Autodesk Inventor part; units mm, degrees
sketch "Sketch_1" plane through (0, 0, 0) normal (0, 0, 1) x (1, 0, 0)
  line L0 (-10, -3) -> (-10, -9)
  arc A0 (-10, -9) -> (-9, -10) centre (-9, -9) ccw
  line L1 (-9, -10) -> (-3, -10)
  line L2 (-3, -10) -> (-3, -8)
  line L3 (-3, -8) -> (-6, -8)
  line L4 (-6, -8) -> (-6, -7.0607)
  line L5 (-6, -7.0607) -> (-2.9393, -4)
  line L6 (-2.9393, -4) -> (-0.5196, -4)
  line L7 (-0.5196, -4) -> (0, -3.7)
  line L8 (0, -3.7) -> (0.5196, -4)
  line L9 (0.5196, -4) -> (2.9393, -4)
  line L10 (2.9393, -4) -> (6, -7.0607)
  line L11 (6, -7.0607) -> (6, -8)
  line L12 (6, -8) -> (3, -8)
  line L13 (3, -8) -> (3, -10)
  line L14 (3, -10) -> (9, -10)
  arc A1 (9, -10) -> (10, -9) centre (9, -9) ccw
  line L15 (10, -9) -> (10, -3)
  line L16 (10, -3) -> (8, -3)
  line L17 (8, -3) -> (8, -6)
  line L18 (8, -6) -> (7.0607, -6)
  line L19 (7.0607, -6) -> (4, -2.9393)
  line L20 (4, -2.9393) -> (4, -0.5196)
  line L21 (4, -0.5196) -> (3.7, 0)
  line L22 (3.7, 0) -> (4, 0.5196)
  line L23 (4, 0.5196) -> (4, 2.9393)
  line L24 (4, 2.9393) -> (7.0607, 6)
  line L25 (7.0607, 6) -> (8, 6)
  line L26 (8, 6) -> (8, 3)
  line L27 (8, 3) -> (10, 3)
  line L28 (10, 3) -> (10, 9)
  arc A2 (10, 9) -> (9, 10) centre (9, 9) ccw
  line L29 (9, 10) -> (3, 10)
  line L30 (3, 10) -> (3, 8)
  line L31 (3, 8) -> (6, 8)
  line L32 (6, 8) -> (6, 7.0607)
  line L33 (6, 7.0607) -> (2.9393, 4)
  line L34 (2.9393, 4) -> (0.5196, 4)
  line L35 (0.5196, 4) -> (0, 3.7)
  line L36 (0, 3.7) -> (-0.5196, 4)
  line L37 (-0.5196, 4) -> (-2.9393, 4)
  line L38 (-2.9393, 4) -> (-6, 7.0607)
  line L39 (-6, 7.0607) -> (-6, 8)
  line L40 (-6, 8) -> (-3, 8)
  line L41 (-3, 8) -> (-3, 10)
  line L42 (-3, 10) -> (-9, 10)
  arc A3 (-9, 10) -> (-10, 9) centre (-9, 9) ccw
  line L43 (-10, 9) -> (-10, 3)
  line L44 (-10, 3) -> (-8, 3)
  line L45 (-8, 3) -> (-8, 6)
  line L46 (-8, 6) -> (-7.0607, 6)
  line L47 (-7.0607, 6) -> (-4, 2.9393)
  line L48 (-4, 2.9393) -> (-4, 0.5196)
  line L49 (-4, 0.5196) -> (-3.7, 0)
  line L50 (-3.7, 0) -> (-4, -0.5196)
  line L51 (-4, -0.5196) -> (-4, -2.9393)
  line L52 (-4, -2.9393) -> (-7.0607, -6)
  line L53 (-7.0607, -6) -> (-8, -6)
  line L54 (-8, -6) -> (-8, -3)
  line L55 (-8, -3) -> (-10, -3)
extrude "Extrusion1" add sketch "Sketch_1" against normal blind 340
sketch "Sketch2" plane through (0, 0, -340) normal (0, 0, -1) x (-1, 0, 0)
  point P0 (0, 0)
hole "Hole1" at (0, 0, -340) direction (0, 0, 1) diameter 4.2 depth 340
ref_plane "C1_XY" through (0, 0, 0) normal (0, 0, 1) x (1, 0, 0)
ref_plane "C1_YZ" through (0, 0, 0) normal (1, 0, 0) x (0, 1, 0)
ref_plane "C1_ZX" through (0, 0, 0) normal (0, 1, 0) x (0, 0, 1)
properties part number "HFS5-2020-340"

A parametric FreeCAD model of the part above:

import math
import FreeCAD as App
import Part
import Sketcher

V = App.Vector
Q = App.Units.Quantity

doc = App.newDocument("Part")
body = doc.addObject("PartDesign::Body", "Body")

sketch1 = doc.addObject("Sketcher::SketchObject", "Sketch")
body.addObject(sketch1)
sketch1.AttachmentSupport = (doc.XY_Plane, [""])
sketch1.MapMode = "FlatFace"
sketch1.addGeometry([
    Part.LineSegment(V(-8, -3, 0), V(-10, -3, 0)),
    Part.LineSegment(V(-10, -3, 0), V(-10, -9, 0)),
    Part.ArcOfCircle(Part.Circle(V(-9, -9, 0), V(0, 0, 1), 1), math.radians(180), math.radians(270)),
    Part.LineSegment(V(-9, -10, 0), V(-3, -10, 0)),
    Part.LineSegment(V(-3, -10, 0), V(-3, -8, 0)),
    Part.LineSegment(V(-3, -8, 0), V(-6, -8, 0)),
    Part.LineSegment(V(-6, -8, 0), V(-6, -7.1, 0)),
    Part.LineSegment(V(-6, -7.1, 0), V(-2.9, -4, 0)),
    Part.LineSegment(V(-2.9, -4, 0), V(-0.5, -4, 0)),
    Part.LineSegment(V(-0.5, -4, 0), V(0, -3.7, 0)),
    Part.LineSegment(V(0, -3.7, 0), V(0.5, -4, 0)),
    Part.LineSegment(V(0.5, -4, 0), V(2.9, -4, 0)),
    Part.LineSegment(V(2.9, -4, 0), V(6, -7.1, 0)),
    Part.LineSegment(V(6, -7.1, 0), V(6, -8, 0)),
    Part.LineSegment(V(6, -8, 0), V(3, -8, 0)),
    Part.LineSegment(V(3, -8, 0), V(3, -10, 0)),
    Part.LineSegment(V(3, -10, 0), V(9, -10, 0)),
    Part.ArcOfCircle(Part.Circle(V(9, -9, 0), V(0, 0, 1), 1), math.radians(-90), math.radians(0)),
    Part.LineSegment(V(10, -9, 0), V(10, -3, 0)),
    Part.LineSegment(V(10, -3, 0), V(8, -3, 0)),
    Part.LineSegment(V(8, -3, 0), V(8, -6, 0)),
    Part.LineSegment(V(8, -6, 0), V(7.1, -6, 0)),
    Part.LineSegment(V(7.1, -6, 0), V(4, -2.9, 0)),
    Part.LineSegment(V(4, -2.9, 0), V(4, -0.5, 0)),
    Part.LineSegment(V(4, -0.5, 0), V(3.7, 0, 0)),
    Part.LineSegment(V(3.7, 0, 0), V(4, 0.5, 0)),
    Part.LineSegment(V(4, 0.5, 0), V(4, 2.9, 0)),
    Part.LineSegment(V(4, 2.9, 0), V(7.1, 6, 0)),
    Part.LineSegment(V(7.1, 6, 0), V(8, 6, 0)),
    Part.LineSegment(V(8, 6, 0), V(8, 3, 0)),
    Part.LineSegment(V(8, 3, 0), V(10, 3, 0)),
    Part.LineSegment(V(10, 3, 0), V(10, 9, 0)),
    Part.ArcOfCircle(Part.Circle(V(9, 9, 0), V(0, 0, 1), 1), math.radians(0), math.radians(90)),
    Part.LineSegment(V(9, 10, 0), V(3, 10, 0)),
    Part.LineSegment(V(3, 10, 0), V(3, 8, 0)),
    Part.LineSegment(V(3, 8, 0), V(6, 8, 0)),
    Part.LineSegment(V(6, 8, 0), V(6, 7.1, 0)),
    Part.LineSegment(V(6, 7.1, 0), V(2.9, 4, 0)),
    Part.LineSegment(V(2.9, 4, 0), V(0.5, 4, 0)),
    Part.LineSegment(V(0.5, 4, 0), V(0, 3.7, 0)),
    Part.LineSegment(V(0, 3.7, 0), V(-0.5, 4, 0)),
    Part.LineSegment(V(-0.5, 4, 0), V(-2.9, 4, 0)),
    Part.LineSegment(V(-2.9, 4, 0), V(-6, 7.1, 0)),
    Part.LineSegment(V(-6, 7.1, 0), V(-6, 8, 0)),
    Part.LineSegment(V(-6, 8, 0), V(-3, 8, 0)),
    Part.LineSegment(V(-3, 8, 0), V(-3, 10, 0)),
    Part.LineSegment(V(-3, 10, 0), V(-9, 10, 0)),
    Part.ArcOfCircle(Part.Circle(V(-9, 9, 0), V(0, 0, 1), 1), math.radians(90), math.radians(180)),
    Part.LineSegment(V(-10, 9, 0), V(-10, 3, 0)),
    Part.LineSegment(V(-10, 3, 0), V(-8, 3, 0)),
    Part.LineSegment(V(-8, 3, 0), V(-8, 6, 0)),
    Part.LineSegment(V(-8, 6, 0), V(-7.1, 6, 0)),
    Part.LineSegment(V(-7.1, 6, 0), V(-4, 2.9, 0)),
    Part.LineSegment(V(-4, 2.9, 0), V(-4, 0.5, 0)),
    Part.LineSegment(V(-4, 0.5, 0), V(-3.7, 0, 0)),
    Part.LineSegment(V(-3.7, 0, 0), V(-4, -0.5, 0)),
    Part.LineSegment(V(-4, -0.5, 0), V(-4, -2.9, 0)),
    Part.LineSegment(V(-4, -2.9, 0), V(-7.1, -6, 0)),
    Part.LineSegment(V(-7.1, -6, 0), V(-8, -6, 0)),
    Part.LineSegment(V(-8, -6, 0), V(-8, -3, 0)),
], False)
sketch1.addConstraint([
    Sketcher.Constraint("Coincident", 0, 2, 1, 1),
    Sketcher.Constraint("Tangent", 1, 2, 2, 1),
    Sketcher.Constraint("Tangent", 2, 2, 3, 1),
    Sketcher.Constraint("Coincident", 3, 2, 4, 1),
    Sketcher.Constraint("Coincident", 4, 2, 5, 1),
    Sketcher.Constraint("Coincident", 5, 2, 6, 1),
    Sketcher.Constraint("Coincident", 6, 2, 7, 1),
    Sketcher.Constraint("Coincident", 7, 2, 8, 1),
    Sketcher.Constraint("Coincident", 8, 2, 9, 1),
    Sketcher.Constraint("Coincident", 9, 2, 10, 1),
    Sketcher.Constraint("Coincident", 10, 2, 11, 1),
    Sketcher.Constraint("Coincident", 11, 2, 12, 1),
    Sketcher.Constraint("Coincident", 12, 2, 13, 1),
    Sketcher.Constraint("Coincident", 13, 2, 14, 1),
    Sketcher.Constraint("Coincident", 14, 2, 15, 1),
    Sketcher.Constraint("Coincident", 15, 2, 16, 1),
    Sketcher.Constraint("Tangent", 16, 2, 17, 1),
    Sketcher.Constraint("Tangent", 17, 2, 18, 1),
    Sketcher.Constraint("Coincident", 18, 2, 19, 1),
    Sketcher.Constraint("Coincident", 19, 2, 20, 1),
    Sketcher.Constraint("Coincident", 20, 2, 21, 1),
    Sketcher.Constraint("Coincident", 21, 2, 22, 1),
    Sketcher.Constraint("Coincident", 22, 2, 23, 1),
    Sketcher.Constraint("Coincident", 23, 2, 24, 1),
    Sketcher.Constraint("Coincident", 24, 2, 25, 1),
    Sketcher.Constraint("Coincident", 25, 2, 26, 1),
    Sketcher.Constraint("Coincident", 26, 2, 27, 1),
    Sketcher.Constraint("Coincident", 27, 2, 28, 1),
    Sketcher.Constraint("Coincident", 28, 2, 29, 1),
    Sketcher.Constraint("Coincident", 29, 2, 30, 1),
    Sketcher.Constraint("Coincident", 30, 2, 31, 1),
    Sketcher.Constraint("Tangent", 31, 2, 32, 1),
    Sketcher.Constraint("Tangent", 32, 2, 33, 1),
    Sketcher.Constraint("Coincident", 33, 2, 34, 1),
    Sketcher.Constraint("Coincident", 34, 2, 35, 1),
    Sketcher.Constraint("Coincident", 35, 2, 36, 1),
    Sketcher.Constraint("Coincident", 36, 2, 37, 1),
    Sketcher.Constraint("Coincident", 37, 2, 38, 1),
    Sketcher.Constraint("Coincident", 38, 2, 39, 1),
    Sketcher.Constraint("Coincident", 39, 2, 40, 1),
    Sketcher.Constraint("Coincident", 40, 2, 41, 1),
    Sketcher.Constraint("Coincident", 41, 2, 42, 1),
    Sketcher.Constraint("Coincident", 42, 2, 43, 1),
    Sketcher.Constraint("Coincident", 43, 2, 44, 1),
    Sketcher.Constraint("Coincident", 44, 2, 45, 1),
    Sketcher.Constraint("Coincident", 45, 2, 46, 1),
    Sketcher.Constraint("Tangent", 46, 2, 47, 1),
    Sketcher.Constraint("Tangent", 47, 2, 48, 1),
    Sketcher.Constraint("Coincident", 48, 2, 49, 1),
    Sketcher.Constraint("Coincident", 49, 2, 50, 1),
    Sketcher.Constraint("Coincident", 50, 2, 51, 1),
    Sketcher.Constraint("Coincident", 51, 2, 52, 1),
    Sketcher.Constraint("Coincident", 52, 2, 53, 1),
    Sketcher.Constraint("Coincident", 53, 2, 54, 1),
    Sketcher.Constraint("Coincident", 54, 2, 55, 1),
    Sketcher.Constraint("Coincident", 55, 2, 56, 1),
    Sketcher.Constraint("Coincident", 56, 2, 57, 1),
    Sketcher.Constraint("Coincident", 57, 2, 58, 1),
    Sketcher.Constraint("Coincident", 58, 2, 59, 1),
    Sketcher.Constraint("Coincident", 59, 2, 0, 1),
    Sketcher.Constraint("Horizontal", 0),
    Sketcher.Constraint("Vertical", 1),
    Sketcher.Constraint("Horizontal", 3),
    Sketcher.Constraint("Vertical", 4),
    Sketcher.Constraint("Horizontal", 5),
    Sketcher.Constraint("Vertical", 6),
    Sketcher.Constraint("Horizontal", 8),
    Sketcher.Constraint("Horizontal", 11),
    Sketcher.Constraint("Vertical", 13),
    Sketcher.Constraint("Horizontal", 14),
    Sketcher.Constraint("Vertical", 15),
    Sketcher.Constraint("Horizontal", 16),
    Sketcher.Constraint("Vertical", 18),
    Sketcher.Constraint("Horizontal", 19),
    Sketcher.Constraint("Vertical", 20),
    Sketcher.Constraint("Horizontal", 21),
    Sketcher.Constraint("Vertical", 23),
    Sketcher.Constraint("Vertical", 26),
    Sketcher.Constraint("Horizontal", 28),
    Sketcher.Constraint("Vertical", 29),
    Sketcher.Constraint("Horizontal", 30),
    Sketcher.Constraint("Vertical", 31),
    Sketcher.Constraint("Horizontal", 33),
    Sketcher.Constraint("Vertical", 34),
    Sketcher.Constraint("Horizontal", 35),
    Sketcher.Constraint("Vertical", 36),
    Sketcher.Constraint("Horizontal", 38),
    Sketcher.Constraint("Horizontal", 41),
    Sketcher.Constraint("Vertical", 43),
    Sketcher.Constraint("Horizontal", 44),
    Sketcher.Constraint("Vertical", 45),
    Sketcher.Constraint("Horizontal", 46),
    Sketcher.Constraint("Vertical", 48),
    Sketcher.Constraint("Horizontal", 49),
    Sketcher.Constraint("Vertical", 50),
    Sketcher.Constraint("Horizontal", 51),
    Sketcher.Constraint("Vertical", 53),
    Sketcher.Constraint("Vertical", 56),
    Sketcher.Constraint("Horizontal", 58),
    Sketcher.Constraint("Vertical", 59),
    Sketcher.Constraint("Equal", 2, 17),
    Sketcher.Constraint("Equal", 17, 32),
    Sketcher.Constraint("Equal", 32, 47),
    Sketcher.Constraint("Symmetric", 2, 3, 32, 3, -1, 1),
    Sketcher.Constraint("Symmetric", 17, 3, 47, 3, -1, 1),
    Sketcher.Constraint("Symmetric", 4, 2, 34, 2, -1, 1),
    Sketcher.Constraint("Symmetric", 6, 2, 36, 2, -1, 1),
    Sketcher.Constraint("Symmetric", 7, 2, 37, 2, -1, 1),
    Sketcher.Constraint("Symmetric", 9, 2, 39, 2, -1, 1),
    Sketcher.Constraint("Symmetric", 10, 2, 40, 2, -1, 1),
    Sketcher.Constraint("Symmetric", 12, 2, 42, 2, -1, 1),
    Sketcher.Constraint("Symmetric", 14, 2, 44, 2, -1, 1),
    Sketcher.Constraint("Symmetric", 19, 2, 49, 2, -1, 1),
    Sketcher.Constraint("Symmetric", 21, 2, 51, 2, -1, 1),
    Sketcher.Constraint("Symmetric", 22, 2, 52, 2, -1, 1),
    Sketcher.Constraint("Symmetric", 24, 2, 54, 2, -1, 1),
    Sketcher.Constraint("Symmetric", 25, 2, 55, 2, -1, 1),
    Sketcher.Constraint("Symmetric", 27, 2, 57, 2, -1, 1),
    Sketcher.Constraint("Symmetric", 29, 2, 59, 2, -1, 1),
    Sketcher.Constraint("Symmetric", 2, 3, 17, 3, -2),
    Sketcher.Constraint("Symmetric", 8, 2, 10, 2, -2),
    Sketcher.Constraint("Symmetric", 6, 2, 12, 2, -2),
    Sketcher.Constraint("Symmetric", 4, 2, 14, 2, -2),
    Sketcher.Constraint("Symmetric", 29, 2, 49, 2, -2),
    Sketcher.Constraint("Symmetric", 27, 2, 51, 2, -2),
    Sketcher.Constraint("Symmetric", 26, 2, 52, 2, -2),
    Sketcher.Constraint("PointOnObject", 9, 2, -2),
    Sketcher.Constraint("PointOnObject", 24, 2, -1),
    Sketcher.Constraint("Perpendicular", 7, 12),
    Sketcher.Constraint("Parallel", 12, 22),
    Sketcher.Constraint("Perpendicular", 9, 24),
    Sketcher.Constraint("Perpendicular", 10, 25),
    Sketcher.Constraint("Perpendicular", 22, 27),
    Sketcher.Constraint("Perpendicular", 24, 39),
    Sketcher.Constraint("Perpendicular", 37, 42),
    Sketcher.Constraint("Perpendicular", 39, 54),
    Sketcher.Constraint("Perpendicular", 52, 57),
    Sketcher.Constraint("Equal", 46, 1),
    Sketcher.Constraint("Equal", 49, 4),
    Sketcher.Constraint("Equal", 58, 6),
    Sketcher.Constraint("Equal", 44, 20),
    Sketcher.Constraint("Equal", 41, 23),
    Sketcher.Constraint("Equal", 12, 22),
    Sketcher.Constraint("Equal", 10, 24),
    Sketcher.Constraint("Radius", 2, 1.0),
    Sketcher.Constraint("DistanceX", 0, 2, 0, 1, 2.0),
    Sketcher.Constraint("DistanceX", 3, 1, 3, 2, 6.0),
    Sketcher.Constraint("DistanceX", 5, 2, 5, 1, 3.0),
    Sketcher.Constraint("Angle", 9, Q("30.0007 deg")),
    Sketcher.Constraint("DistanceX", 2, 3, -1, 1, 9.0),
    Sketcher.Constraint("DistanceY", 7, 2, -1, 1, 4.0),
    Sketcher.Constraint("Distance", 9, 0.6),
    Sketcher.Constraint("DistanceX", 8, 1, 8, 2, 2.4197),
])
pad1 = doc.addObject("PartDesign::Pad", "Pad")
body.addObject(pad1)
pad1.Profile = sketch1
pad1.Length = 340
pad1.Reversed = True

sketch2 = doc.addObject("Sketcher::SketchObject", "Sketch001")
body.addObject(sketch2)
sketch2.AttachmentSupport = (doc.XY_Plane, [""])
sketch2.MapMode = "FlatFace"
sketch2.AttachmentOffset = App.Placement(V(0, 0, -340), App.Rotation())
sketch2.addGeometry(Part.Circle(V(0, 0, 0), V(0, 0, 1), 2.1), False)
sketch2.addConstraint([
    Sketcher.Constraint("Coincident", 0, 3, -1, 1),
    Sketcher.Constraint("Diameter", 0, 4.2),
])
doc.recompute()
hole = doc.addObject("PartDesign::Hole", "Hole")
body.addObject(hole)
hole.Profile = sketch2
hole.ThreadType = "None"
hole.Diameter = 4.2
hole.DepthType = "Dimension"
hole.Depth = 340
hole.DrillPoint = "Flat"
hole.Reversed = True

doc.recompute()
